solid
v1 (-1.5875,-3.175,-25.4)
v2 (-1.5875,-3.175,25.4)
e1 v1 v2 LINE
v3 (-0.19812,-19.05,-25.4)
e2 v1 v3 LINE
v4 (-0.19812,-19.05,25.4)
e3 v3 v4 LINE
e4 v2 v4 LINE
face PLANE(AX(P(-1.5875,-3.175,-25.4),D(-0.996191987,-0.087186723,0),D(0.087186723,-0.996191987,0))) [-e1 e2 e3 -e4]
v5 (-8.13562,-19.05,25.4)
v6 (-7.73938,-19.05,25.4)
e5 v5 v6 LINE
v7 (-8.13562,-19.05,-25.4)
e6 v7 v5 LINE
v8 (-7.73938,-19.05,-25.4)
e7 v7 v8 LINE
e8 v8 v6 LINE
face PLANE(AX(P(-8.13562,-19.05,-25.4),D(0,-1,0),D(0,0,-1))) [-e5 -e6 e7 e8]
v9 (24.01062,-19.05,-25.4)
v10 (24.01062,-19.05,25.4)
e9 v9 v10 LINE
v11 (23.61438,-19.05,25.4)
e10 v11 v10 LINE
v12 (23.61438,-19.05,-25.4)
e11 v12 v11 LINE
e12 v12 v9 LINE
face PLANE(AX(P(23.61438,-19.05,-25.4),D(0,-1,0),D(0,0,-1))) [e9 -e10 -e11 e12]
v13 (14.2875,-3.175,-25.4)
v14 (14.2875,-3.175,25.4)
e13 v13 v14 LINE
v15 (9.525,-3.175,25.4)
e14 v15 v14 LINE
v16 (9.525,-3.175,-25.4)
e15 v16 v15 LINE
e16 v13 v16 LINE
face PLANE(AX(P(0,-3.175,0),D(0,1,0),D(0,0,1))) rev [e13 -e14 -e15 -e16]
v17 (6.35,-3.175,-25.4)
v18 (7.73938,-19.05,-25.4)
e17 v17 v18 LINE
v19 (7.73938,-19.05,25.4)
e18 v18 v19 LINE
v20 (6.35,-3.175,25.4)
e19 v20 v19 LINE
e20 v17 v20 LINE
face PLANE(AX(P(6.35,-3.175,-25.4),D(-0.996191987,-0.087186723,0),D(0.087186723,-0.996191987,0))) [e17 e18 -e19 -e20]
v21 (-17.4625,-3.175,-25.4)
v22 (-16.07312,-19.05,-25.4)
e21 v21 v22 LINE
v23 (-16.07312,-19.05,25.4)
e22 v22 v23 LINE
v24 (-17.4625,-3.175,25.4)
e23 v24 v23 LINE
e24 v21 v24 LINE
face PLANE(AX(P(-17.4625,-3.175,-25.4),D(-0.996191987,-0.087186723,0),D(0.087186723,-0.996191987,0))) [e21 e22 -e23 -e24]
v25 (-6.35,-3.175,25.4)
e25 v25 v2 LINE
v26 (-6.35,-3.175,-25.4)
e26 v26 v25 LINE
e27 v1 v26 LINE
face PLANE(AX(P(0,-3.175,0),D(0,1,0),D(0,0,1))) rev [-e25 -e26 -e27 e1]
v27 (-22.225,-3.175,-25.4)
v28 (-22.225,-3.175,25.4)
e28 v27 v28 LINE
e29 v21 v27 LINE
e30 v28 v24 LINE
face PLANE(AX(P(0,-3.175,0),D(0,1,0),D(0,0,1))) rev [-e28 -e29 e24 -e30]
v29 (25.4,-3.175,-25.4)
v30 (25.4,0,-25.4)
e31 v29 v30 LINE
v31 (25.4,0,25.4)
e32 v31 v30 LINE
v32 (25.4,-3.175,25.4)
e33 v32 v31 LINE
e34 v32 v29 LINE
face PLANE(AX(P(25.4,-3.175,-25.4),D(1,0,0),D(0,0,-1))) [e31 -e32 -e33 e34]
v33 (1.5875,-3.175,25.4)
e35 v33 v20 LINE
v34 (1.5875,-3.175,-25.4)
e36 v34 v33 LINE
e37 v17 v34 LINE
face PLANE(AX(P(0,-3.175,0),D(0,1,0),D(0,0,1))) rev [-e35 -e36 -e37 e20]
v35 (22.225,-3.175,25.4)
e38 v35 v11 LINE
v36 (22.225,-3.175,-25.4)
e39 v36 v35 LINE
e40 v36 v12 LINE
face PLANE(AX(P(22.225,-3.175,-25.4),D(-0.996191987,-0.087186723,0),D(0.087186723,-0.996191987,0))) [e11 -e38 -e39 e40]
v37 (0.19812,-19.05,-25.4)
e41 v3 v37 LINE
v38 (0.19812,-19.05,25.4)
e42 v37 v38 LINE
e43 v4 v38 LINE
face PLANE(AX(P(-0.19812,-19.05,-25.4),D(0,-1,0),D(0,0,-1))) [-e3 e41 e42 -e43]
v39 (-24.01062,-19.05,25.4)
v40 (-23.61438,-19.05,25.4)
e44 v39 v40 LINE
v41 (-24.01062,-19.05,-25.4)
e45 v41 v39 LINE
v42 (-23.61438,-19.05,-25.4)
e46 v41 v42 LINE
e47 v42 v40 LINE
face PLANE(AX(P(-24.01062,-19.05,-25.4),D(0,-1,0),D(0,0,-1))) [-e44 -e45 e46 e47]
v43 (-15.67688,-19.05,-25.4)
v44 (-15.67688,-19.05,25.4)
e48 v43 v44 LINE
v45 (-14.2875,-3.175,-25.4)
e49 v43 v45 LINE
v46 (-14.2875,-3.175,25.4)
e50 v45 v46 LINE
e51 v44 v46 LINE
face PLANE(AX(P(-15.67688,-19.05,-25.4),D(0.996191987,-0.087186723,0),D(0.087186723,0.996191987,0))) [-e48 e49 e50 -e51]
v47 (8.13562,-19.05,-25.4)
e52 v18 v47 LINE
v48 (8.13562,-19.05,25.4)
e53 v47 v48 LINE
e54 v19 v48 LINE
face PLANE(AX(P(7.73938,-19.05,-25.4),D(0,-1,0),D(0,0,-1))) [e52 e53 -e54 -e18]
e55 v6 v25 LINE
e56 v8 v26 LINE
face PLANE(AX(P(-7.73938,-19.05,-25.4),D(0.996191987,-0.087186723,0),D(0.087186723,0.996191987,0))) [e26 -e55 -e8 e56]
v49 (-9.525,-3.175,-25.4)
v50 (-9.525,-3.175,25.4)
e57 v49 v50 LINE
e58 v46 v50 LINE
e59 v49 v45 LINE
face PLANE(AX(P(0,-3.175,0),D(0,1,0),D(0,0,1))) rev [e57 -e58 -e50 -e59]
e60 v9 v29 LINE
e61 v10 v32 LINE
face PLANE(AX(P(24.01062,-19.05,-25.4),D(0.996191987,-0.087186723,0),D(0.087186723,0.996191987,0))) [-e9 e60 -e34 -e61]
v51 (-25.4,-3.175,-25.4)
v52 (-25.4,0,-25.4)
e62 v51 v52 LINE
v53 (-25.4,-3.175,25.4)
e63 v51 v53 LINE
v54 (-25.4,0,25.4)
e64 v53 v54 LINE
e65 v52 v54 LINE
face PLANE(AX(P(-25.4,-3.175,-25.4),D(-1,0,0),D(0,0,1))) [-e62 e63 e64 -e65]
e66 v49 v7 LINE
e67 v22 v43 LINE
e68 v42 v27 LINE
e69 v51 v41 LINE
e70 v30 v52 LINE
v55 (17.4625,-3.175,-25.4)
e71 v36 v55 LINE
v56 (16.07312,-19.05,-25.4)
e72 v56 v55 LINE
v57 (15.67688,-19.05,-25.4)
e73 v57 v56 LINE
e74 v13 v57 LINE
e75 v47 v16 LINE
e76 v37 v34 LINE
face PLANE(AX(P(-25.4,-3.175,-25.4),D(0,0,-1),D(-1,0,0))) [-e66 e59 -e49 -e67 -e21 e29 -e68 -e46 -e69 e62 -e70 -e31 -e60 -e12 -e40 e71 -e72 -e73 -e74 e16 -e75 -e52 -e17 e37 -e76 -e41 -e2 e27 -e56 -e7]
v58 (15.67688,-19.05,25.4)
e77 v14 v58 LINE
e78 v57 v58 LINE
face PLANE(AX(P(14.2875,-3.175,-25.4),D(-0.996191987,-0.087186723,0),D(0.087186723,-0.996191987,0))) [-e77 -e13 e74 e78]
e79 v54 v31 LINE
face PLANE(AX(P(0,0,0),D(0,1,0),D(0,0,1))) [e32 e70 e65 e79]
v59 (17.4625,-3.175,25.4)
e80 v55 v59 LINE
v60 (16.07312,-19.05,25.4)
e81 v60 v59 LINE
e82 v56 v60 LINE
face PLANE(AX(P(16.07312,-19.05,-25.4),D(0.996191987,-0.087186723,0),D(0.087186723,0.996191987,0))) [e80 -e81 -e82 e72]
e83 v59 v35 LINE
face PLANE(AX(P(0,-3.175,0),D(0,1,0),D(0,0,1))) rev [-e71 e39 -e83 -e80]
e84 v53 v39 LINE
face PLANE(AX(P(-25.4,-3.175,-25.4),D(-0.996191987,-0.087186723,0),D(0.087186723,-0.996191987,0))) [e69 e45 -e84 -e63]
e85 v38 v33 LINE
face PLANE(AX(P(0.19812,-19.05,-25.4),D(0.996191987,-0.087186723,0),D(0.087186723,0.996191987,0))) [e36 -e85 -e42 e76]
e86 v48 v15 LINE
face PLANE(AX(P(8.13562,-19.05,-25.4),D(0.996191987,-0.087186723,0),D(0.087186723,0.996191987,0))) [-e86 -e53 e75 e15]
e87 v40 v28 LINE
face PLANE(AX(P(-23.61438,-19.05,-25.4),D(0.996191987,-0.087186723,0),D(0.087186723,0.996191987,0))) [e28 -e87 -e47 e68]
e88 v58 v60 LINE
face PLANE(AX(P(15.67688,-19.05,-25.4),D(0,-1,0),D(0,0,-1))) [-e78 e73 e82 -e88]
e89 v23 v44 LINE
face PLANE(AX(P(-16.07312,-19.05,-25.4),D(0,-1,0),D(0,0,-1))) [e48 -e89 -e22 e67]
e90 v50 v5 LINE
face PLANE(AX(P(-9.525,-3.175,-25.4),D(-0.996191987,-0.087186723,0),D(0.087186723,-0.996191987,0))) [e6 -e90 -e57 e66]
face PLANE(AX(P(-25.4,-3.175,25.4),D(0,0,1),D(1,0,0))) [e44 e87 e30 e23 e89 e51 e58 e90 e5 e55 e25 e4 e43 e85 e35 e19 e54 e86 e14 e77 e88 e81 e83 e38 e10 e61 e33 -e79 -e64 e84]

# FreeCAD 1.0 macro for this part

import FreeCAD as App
import Part
import Sketcher
from FreeCAD import Vector
Q = App.Units.Quantity

doc = App.newDocument("Part")
body = doc.addObject("PartDesign::Body", "Body")

# Sketch on XZ plane
sketch1 = body.newObject("Sketcher::SketchObject", "Sketch")
sketch1.AttachmentSupport = (doc.getObject("XZ_Plane"), [""])
sketch1.MapMode = "FlatFace"
sketch1.addGeometry([
    Part.LineSegment(Vector(-25, -25, 0), Vector(-25, 25, 0)),
    Part.LineSegment(Vector(-25, 25, 0), Vector(25, 25, 0)),
    Part.LineSegment(Vector(25, 25, 0), Vector(25, -25, 0)),
    Part.LineSegment(Vector(25, -25, 0), Vector(-25, -25, 0)),
], False)
sketch1.addConstraint([
    Sketcher.Constraint("Coincident", 0, 2, 1, 1),
    Sketcher.Constraint("Coincident", 1, 2, 2, 1),
    Sketcher.Constraint("Coincident", 2, 2, 3, 1),
    Sketcher.Constraint("Coincident", 3, 2, 0, 1),
    Sketcher.Constraint("Vertical", 0),
    Sketcher.Constraint("Horizontal", 1),
    Sketcher.Constraint("Vertical", 2),
    Sketcher.Constraint("Horizontal", 3),
    Sketcher.Constraint("Symmetric", 0, 2, 2, 2, -1, 1),
    Sketcher.Constraint("Equal", 3, 0),
    Sketcher.Constraint("DistanceX", 1, 1, 1, 2, Q("2 in")),
])
pad1 = body.newObject("PartDesign::Pad", "Pad")
pad1.Profile = sketch1
pad1.Length = Q("0.125 in")

# Sketch on XY plane
sketch2 = body.newObject("Sketcher::SketchObject", "Sketch001")
sketch2.AttachmentSupport = (doc.getObject("XY_Plane"), [""])
sketch2.MapMode = "FlatFace"
sketch2.AttachmentOffset = App.Placement(Vector(0, 0, 1 * 25.4), App.Rotation())
sketch2.addGeometry([
    Part.LineSegment(Vector(-25.4, -3.17, 0), Vector(-24.01, -19.05, 0)),
    Part.LineSegment(Vector(-24.01, -19.05, 0), Vector(-23.61, -19.05, 0)),
    Part.LineSegment(Vector(-23.61, -19.05, 0), Vector(-22.23, -3.17, 0)),
    Part.LineSegment(Vector(-22.23, -3.17, 0), Vector(-25.4, -3.17, 0)),
], False)
sketch2.addConstraint([
    Sketcher.Constraint("Coincident", 0, 2, 1, 1),
    Sketcher.Constraint("Coincident", 1, 2, 2, 1),
    Sketcher.Constraint("Coincident", 2, 2, 3, 1),
    Sketcher.Constraint("Coincident", 3, 2, 0, 1),
    Sketcher.Constraint("Horizontal", 1),
    Sketcher.Constraint("Horizontal", 3),
    Sketcher.Constraint("Equal", 0, 2),
    Sketcher.Constraint("DistanceX", 3, 2, -1, 1, Q("1 in")),
    Sketcher.Constraint("DistanceX", 3, 2, 3, 1, Q("0.125 in")),
    Sketcher.Constraint("DistanceY", 0, 2, -1, 1, Q("0.75 in")),
    Sketcher.Constraint("DistanceX", 1, 1, 1, 2, Q("0.0156 in")),
    Sketcher.Constraint("DistanceY", 2, 2, -1, 1, Q("0.125 in")),
])
pad2 = body.newObject("PartDesign::Pad", "Pad001")
pad2.Profile = sketch2
pad2.Length = Q("2 in")
pad2.Reversed = True
doc.recompute()

linearpattern = body.newObject("PartDesign::LinearPattern", "LinearPattern")
linearpattern.Originals = [pad2]
linearpattern.Direction = (doc.getObject("X_Axis"), [""])
linearpattern.Mode = "offset"
linearpattern.Offset = Q("0.3125 in")
linearpattern.Occurrences = 7
body.Tip = linearpattern

doc.recompute()
